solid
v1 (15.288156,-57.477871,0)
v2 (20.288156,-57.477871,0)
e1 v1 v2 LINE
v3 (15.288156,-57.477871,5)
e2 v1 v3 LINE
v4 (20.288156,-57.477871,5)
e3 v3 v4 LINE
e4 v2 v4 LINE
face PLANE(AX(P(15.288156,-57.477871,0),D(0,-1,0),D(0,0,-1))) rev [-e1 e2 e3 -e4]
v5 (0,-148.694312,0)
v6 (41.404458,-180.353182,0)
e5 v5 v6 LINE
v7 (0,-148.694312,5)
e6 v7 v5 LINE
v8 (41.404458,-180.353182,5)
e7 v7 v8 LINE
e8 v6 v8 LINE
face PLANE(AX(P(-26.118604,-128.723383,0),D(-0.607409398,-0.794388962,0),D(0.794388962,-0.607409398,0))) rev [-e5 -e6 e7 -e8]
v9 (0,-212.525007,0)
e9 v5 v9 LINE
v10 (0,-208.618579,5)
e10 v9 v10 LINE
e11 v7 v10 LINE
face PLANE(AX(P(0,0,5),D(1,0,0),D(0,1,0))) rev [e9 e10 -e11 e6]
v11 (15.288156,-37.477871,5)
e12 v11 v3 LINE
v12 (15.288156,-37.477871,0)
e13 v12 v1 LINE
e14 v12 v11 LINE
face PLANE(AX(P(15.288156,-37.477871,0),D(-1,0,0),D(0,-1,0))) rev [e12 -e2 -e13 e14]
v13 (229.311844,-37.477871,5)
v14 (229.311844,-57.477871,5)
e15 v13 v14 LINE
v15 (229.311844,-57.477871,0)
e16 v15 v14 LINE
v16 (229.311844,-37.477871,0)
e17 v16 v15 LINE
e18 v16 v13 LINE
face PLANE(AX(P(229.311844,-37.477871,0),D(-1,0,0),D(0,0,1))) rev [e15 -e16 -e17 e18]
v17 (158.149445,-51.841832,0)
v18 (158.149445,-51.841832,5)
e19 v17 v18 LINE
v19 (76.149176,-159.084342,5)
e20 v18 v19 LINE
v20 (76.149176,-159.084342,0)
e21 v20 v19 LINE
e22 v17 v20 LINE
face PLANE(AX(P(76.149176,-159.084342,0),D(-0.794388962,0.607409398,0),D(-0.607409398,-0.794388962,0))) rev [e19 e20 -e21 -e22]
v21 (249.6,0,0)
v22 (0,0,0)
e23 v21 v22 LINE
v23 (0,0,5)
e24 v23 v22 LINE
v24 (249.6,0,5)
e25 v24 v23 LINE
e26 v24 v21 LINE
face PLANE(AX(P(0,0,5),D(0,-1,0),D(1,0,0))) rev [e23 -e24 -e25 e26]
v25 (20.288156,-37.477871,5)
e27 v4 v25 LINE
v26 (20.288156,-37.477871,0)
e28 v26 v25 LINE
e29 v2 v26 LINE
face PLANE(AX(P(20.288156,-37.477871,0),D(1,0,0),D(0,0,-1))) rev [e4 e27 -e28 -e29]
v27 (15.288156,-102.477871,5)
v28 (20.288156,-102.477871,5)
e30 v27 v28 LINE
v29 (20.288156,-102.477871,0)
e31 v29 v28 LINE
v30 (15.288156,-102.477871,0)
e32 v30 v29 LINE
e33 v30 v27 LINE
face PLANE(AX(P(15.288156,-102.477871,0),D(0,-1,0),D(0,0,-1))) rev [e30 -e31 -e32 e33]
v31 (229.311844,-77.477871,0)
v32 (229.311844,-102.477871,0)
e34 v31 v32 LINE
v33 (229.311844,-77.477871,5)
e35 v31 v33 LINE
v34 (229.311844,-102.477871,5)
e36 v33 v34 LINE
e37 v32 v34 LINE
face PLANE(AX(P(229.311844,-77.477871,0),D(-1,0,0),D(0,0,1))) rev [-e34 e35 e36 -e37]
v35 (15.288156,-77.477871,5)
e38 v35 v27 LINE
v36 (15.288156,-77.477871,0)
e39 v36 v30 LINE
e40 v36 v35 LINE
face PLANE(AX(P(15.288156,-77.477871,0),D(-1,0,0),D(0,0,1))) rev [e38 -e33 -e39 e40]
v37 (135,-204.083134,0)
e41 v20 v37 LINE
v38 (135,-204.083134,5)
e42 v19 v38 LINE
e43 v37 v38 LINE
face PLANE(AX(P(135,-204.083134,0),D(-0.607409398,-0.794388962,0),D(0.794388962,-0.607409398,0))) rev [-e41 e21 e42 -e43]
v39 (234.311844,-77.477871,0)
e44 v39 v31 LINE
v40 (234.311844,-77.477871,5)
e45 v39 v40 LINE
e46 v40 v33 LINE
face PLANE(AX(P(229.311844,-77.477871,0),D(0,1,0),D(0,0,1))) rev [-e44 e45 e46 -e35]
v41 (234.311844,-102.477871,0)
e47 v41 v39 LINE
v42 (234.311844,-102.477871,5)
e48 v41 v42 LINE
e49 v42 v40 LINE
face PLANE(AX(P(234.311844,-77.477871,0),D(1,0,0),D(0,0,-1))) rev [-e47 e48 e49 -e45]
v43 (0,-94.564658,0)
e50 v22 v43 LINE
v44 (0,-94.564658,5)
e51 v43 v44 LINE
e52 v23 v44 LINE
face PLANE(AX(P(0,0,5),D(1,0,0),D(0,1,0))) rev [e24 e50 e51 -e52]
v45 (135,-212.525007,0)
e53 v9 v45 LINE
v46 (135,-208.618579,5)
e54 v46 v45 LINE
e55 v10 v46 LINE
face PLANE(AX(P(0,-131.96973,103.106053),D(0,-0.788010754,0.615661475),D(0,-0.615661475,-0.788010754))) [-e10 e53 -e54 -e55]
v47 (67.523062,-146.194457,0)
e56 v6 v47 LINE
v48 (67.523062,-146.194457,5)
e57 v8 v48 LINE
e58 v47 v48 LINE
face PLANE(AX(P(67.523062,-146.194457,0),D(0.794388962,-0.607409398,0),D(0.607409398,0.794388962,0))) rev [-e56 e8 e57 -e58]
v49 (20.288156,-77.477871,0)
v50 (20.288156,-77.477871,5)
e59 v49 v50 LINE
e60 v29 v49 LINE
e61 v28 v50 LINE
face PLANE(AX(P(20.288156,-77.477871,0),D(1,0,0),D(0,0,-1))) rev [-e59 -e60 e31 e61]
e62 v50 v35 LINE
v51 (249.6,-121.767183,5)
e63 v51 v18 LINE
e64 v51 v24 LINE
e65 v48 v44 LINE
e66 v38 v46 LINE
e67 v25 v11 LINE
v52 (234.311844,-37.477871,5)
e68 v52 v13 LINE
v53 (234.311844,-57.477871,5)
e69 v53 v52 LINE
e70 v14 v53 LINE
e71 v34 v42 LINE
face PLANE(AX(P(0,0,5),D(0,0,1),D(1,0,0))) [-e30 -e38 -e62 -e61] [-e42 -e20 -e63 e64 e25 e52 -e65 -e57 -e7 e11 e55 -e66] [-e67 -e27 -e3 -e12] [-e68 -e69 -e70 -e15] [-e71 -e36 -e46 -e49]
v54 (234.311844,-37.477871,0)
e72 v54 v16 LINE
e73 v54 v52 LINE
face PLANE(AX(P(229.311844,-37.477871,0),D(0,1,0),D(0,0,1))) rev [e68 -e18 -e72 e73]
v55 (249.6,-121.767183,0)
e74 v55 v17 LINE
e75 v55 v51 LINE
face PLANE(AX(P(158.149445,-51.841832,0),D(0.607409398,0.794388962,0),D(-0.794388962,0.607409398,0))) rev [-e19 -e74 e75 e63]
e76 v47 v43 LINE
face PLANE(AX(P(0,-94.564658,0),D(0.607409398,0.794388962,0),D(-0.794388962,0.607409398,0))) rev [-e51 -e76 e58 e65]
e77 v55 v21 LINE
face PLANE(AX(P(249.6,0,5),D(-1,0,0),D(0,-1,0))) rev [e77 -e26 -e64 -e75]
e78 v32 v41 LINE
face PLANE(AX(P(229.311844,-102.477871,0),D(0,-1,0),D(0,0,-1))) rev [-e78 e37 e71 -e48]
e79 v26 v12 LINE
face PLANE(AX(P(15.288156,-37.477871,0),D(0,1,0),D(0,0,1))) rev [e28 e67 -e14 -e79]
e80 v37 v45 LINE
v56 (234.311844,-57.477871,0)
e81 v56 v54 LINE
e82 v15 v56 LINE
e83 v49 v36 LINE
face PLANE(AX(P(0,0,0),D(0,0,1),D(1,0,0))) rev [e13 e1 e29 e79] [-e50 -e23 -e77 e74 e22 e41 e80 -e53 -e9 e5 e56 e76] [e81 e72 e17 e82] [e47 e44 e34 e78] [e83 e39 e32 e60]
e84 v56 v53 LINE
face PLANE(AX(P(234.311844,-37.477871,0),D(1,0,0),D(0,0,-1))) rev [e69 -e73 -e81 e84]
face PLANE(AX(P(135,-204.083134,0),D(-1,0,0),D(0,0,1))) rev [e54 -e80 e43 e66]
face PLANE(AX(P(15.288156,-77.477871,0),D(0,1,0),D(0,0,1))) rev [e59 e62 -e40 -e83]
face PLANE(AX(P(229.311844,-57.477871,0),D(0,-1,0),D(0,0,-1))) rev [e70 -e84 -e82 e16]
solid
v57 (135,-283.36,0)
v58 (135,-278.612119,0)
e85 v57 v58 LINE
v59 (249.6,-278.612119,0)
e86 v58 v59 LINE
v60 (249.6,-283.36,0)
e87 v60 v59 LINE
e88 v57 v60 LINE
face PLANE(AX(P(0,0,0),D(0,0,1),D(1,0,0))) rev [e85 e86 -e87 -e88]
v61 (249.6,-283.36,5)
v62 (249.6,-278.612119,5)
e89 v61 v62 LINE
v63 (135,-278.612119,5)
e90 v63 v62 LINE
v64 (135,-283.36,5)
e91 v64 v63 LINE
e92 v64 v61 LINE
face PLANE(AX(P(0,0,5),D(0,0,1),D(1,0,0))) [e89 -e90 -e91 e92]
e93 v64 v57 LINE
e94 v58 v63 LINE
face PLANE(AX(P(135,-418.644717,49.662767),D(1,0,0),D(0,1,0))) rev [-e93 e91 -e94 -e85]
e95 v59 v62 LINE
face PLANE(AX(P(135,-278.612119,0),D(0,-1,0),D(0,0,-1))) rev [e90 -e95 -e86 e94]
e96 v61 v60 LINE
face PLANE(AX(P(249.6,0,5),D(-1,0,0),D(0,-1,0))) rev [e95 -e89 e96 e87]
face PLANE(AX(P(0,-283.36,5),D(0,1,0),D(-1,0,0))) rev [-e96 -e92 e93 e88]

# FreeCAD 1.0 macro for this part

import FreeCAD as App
import Part
import Sketcher

V = App.Vector


def add_polygon(sketch, points):
    """Adds a closed chain of lines whose ends are joined by coincident constraints."""
    first, n = sketch.GeometryCount, len(points)
    for a, b in zip(points, points[1:] + points[:1]):
        sketch.addGeometry(Part.LineSegment(App.Vector(*a, 0), App.Vector(*b, 0)), False)
    for i in range(n):
        sketch.addConstraint(Sketcher.Constraint("Coincident", first + i, 2, first + (i + 1) % n, 1))

doc = App.newDocument("Part")
body = doc.addObject("PartDesign::Body", "Body")
body.AllowCompound = True

sketch1 = doc.addObject("Sketcher::SketchObject", "Sketch")
body.addObject(sketch1)
sketch1.AttachmentSupport = (doc.XY_Plane, [""])
sketch1.MapMode = "FlatFace"
add_polygon(sketch1, [(0, 0), (0, -283), (250, -283), (250, 0)])
sketch1.addConstraint(Sketcher.Constraint("Vertical", 0))
sketch1.addConstraint(Sketcher.Constraint("Horizontal", 1))
sketch1.addConstraint(Sketcher.Constraint("Vertical", 2))
sketch1.addConstraint(Sketcher.Constraint("Horizontal", 3))
sketch1.addConstraint(Sketcher.Constraint("Coincident", 3, 2, -1, 1))
sketch1.addConstraint(Sketcher.Constraint("DistanceX", 1, 1, 1, 2, 249.6))
sketch1.addConstraint(Sketcher.Constraint("DistanceY", 0, 2, 0, 1, 283.36))
pad1 = doc.addObject("PartDesign::Pad", "Pad")
body.addObject(pad1)
pad1.Profile = sketch1
pad1.Length = 5

sketch2 = doc.addObject("Sketcher::SketchObject", "Sketch001")
body.addObject(sketch2)
sketch2.Placement = App.Placement(V(0, -131.96973, 103.106053), App.Rotation(V(1, 0, 0), V(0, -0.615661475, -0.788010754), V(0, 0.788010754, -0.615661475), "ZXY"))
add_polygon(sketch2, [(0, 219), (0, -11), (135, -11), (135, 219)])
sketch2.addConstraint(Sketcher.Constraint("Vertical", 0))
sketch2.addConstraint(Sketcher.Constraint("Horizontal", 1))
sketch2.addConstraint(Sketcher.Constraint("Vertical", 2))
sketch2.addConstraint(Sketcher.Constraint("Horizontal", 3))
sketch2.addConstraint(Sketcher.Constraint("PointOnObject", 0, 2, -2))
sketch2.addConstraint(Sketcher.Constraint("DistanceX", 1, 1, 1, 2, 135.0))
sketch2.addConstraint(Sketcher.Constraint("DistanceY", 0, 2, 0, 1, 230.014345))
sketch2.addConstraint(Sketcher.Constraint("DistanceY", -1, 1, 2, 2, 218.608629))
pocket1 = doc.addObject("PartDesign::Pocket", "Pocket")
body.addObject(pocket1)
pocket1.Profile = sketch2
pocket1.Length = 193

sketch3 = doc.addObject("Sketcher::SketchObject", "Sketch002")
body.addObject(sketch3)
sketch3.AttachmentSupport = (doc.XY_Plane, [""])
sketch3.MapMode = "FlatFace"
sketch3.AttachmentOffset = App.Placement(V(0, 0, 5), App.Rotation())
add_polygon(sketch3, [(250, -122), (215, -95), (158, -52), (76, -159), (135, -204), (135, -279), (250, -279)])
sketch3.addConstraint(Sketcher.Constraint("Vertical", 4))
sketch3.addConstraint(Sketcher.Constraint("Horizontal", 5))
sketch3.addConstraint(Sketcher.Constraint("Vertical", 6))
sketch3.addConstraint(Sketcher.Constraint("Parallel", 0, 1))
sketch3.addConstraint(Sketcher.Constraint("Perpendicular", 1, 2))
sketch3.addConstraint(Sketcher.Constraint("Perpendicular", 2, 3))
sketch3.addConstraint(Sketcher.Constraint("Distance", 2, 135.0))
sketch3.addConstraint(Sketcher.Constraint("DistanceX", 5, 1, 5, 2, 114.6))
sketch3.addConstraint(Sketcher.Constraint("DistanceX", -1, 1, 3, 2, 135.0))
sketch3.addConstraint(Sketcher.Constraint("DistanceX", -1, 1, 0, 2, 214.957001))
sketch3.addConstraint(Sketcher.Constraint("DistanceY", 3, 2, 1, 2, 152.241302))
sketch3.addConstraint(Sketcher.Constraint("Distance", 1, 71.51101))
sketch3.addConstraint(Sketcher.Constraint("DistanceY", 4, 2, 4, 1, 74.528985))
sketch3.addConstraint(Sketcher.Constraint("DistanceY", 0, 2, -1, 1, 95.278292))
pocket2 = doc.addObject("PartDesign::Pocket", "Pocket001")
body.addObject(pocket2)
pocket2.Profile = sketch3
pocket2.Type = "ThroughAll"

sketch4 = doc.addObject("Sketcher::SketchObject", "Sketch003")
body.addObject(sketch4)
sketch4.AttachmentSupport = (doc.XY_Plane, [""])
sketch4.MapMode = "FlatFace"
sketch4.AttachmentOffset = App.Placement(V(0, 0, 5), App.Rotation())
add_polygon(sketch4, [(68, -146), (0, -95), (-26, -129), (41, -180)])
sketch4.addConstraint(Sketcher.Constraint("PointOnObject", 0, 2, -2))
sketch4.addConstraint(Sketcher.Constraint("Perpendicular", 0, 1))
sketch4.addConstraint(Sketcher.Constraint("Perpendicular", 1, 2))
sketch4.addConstraint(Sketcher.Constraint("Perpendicular", 2, 3))
sketch4.addConstraint(Sketcher.Constraint("Distance", 0, 85.0))
sketch4.addConstraint(Sketcher.Constraint("Distance", 1, 43.0))
sketch4.addConstraint(Sketcher.Constraint("DistanceY", 2, 2, 1, 2, 51.629799))
sketch4.addConstraint(Sketcher.Constraint("DistanceY", 0, 2, -1, 1, 94.564658))
pocket3 = doc.addObject("PartDesign::Pocket", "Pocket002")
body.addObject(pocket3)
pocket3.Profile = sketch4
pocket3.Type = "ThroughAll"

sketch5 = doc.addObject("Sketcher::SketchObject", "Sketch004")
body.addObject(sketch5)
sketch5.AttachmentSupport = (doc.XY_Plane, [""])
sketch5.MapMode = "FlatFace"
sketch5.AttachmentOffset = App.Placement(V(0, 0, 5), App.Rotation())
sketch5.addGeometry(Part.Circle(V(763.5, -447.3, 0), V(0, 0, 1), 2.1), False)
sketch5.addGeometry(Part.Circle(V(787.8, -441.5, 0), V(0, 0, 1), 2.1), False)
sketch5.addGeometry(Part.Circle(V(793.6, -465.8, 0), V(0, 0, 1), 2.1), False)
sketch5.addGeometry(Part.Circle(V(769.3, -471.6, 0), V(0, 0, 1), 2.1), False)
sketch5.addGeometry(Part.Circle(V(797.7, -482.8, 0), V(0, 0, 1), 2.1), False)
sketch5.addGeometry(Part.Circle(V(773.4, -488.7, 0), V(0, 0, 1), 2.1), False)
sketch5.addGeometry(Part.Circle(V(784.4, -480.9, 0), V(0, 0, 1), 4), False)
sketch5.addGeometry(Part.Circle(V(778.6, -456.6, 0), V(0, 0, 1), 4), False)
sketch5.addConstraint(Sketcher.Constraint("Equal", 0, 1))
sketch5.addConstraint(Sketcher.Constraint("Equal", 1, 2))
sketch5.addConstraint(Sketcher.Constraint("Equal", 2, 3))
sketch5.addConstraint(Sketcher.Constraint("Equal", 3, 4))
sketch5.addConstraint(Sketcher.Constraint("Equal", 4, 5))
sketch5.addConstraint(Sketcher.Constraint("Equal", 6, 7))
sketch5.addConstraint(Sketcher.Constraint("Diameter", 6, 8.0))
sketch5.addConstraint(Sketcher.Constraint("Diameter", 0, 4.2))
sketch5.addConstraint(Sketcher.Constraint("DistanceY", 6, 3, -1, 1, 480.8762))
sketch5.addConstraint(Sketcher.Constraint("DistanceY", 5, 3, 2, 3, 22.845199))
sketch5.addConstraint(Sketcher.Constraint("DistanceX", -1, 1, 0, 3, 763.495728))
sketch5.addConstraint(Sketcher.Constraint("DistanceY", 0, 3, -1, 1, 447.322739))
sketch5.addConstraint(Sketcher.Constraint("DistanceY", 1, 3, -1, 1, 441.495509))
sketch5.addConstraint(Sketcher.Constraint("DistanceX", -1, 1, 2, 3, 793.634342))
sketch5.addConstraint(Sketcher.Constraint("DistanceY", 4, 3, -1, 1, 482.824862))
sketch5.addConstraint(Sketcher.Constraint("DistanceX", -1, 1, 5, 3, 773.402019))
sketch5.addConstraint(Sketcher.Constraint("DistanceY", 5, 3, -1, 1, 488.652092))
sketch5.addConstraint(Sketcher.Constraint("DistanceX", 1, 3, 2, 3, 5.82723))
sketch5.addConstraint(Sketcher.Constraint("DistanceX", 0, 3, 3, 3, 5.82723))
sketch5.addConstraint(Sketcher.Constraint("DistanceY", 3, 3, 2, 3, 5.82723))
sketch5.addConstraint(Sketcher.Constraint("DistanceX", 2, 3, 4, 3, 4.079061))
sketch5.addConstraint(Sketcher.Constraint("DistanceX", 7, 3, 6, 3, 5.82723))
sketch5.addConstraint(Sketcher.Constraint("DistanceX", -1, 1, 6, 3, 784.392265))
sketch5.addConstraint(Sketcher.Constraint("DistanceY", 7, 3, -1, 1, 456.564816))
pocket4 = doc.addObject("PartDesign::Pocket", "Pocket003")
body.addObject(pocket4)
pocket4.Profile = sketch5
pocket4.Type = "ThroughAll"

sketch6 = doc.addObject("Sketcher::SketchObject", "Sketch005")
body.addObject(sketch6)
sketch6.AttachmentSupport = (doc.XY_Plane, [""])
sketch6.MapMode = "FlatFace"
sketch6.AttachmentOffset = App.Placement(V(0, 0, 5), App.Rotation())
add_polygon(sketch6, [(15, -37), (15, -57), (20, -57), (20, -37)])
add_polygon(sketch6, [(229, -37), (229, -57), (234, -57), (234, -37)])
add_polygon(sketch6, [(15, -77), (15, -102), (20, -102), (20, -77)])
add_polygon(sketch6, [(229, -77), (229, -102), (234, -102), (234, -77)])
sketch6.addConstraint(Sketcher.Constraint("Vertical", 0))
sketch6.addConstraint(Sketcher.Constraint("Horizontal", 1))
sketch6.addConstraint(Sketcher.Constraint("Vertical", 2))
sketch6.addConstraint(Sketcher.Constraint("Horizontal", 3))
sketch6.addConstraint(Sketcher.Constraint("Vertical", 4))
sketch6.addConstraint(Sketcher.Constraint("Horizontal", 5))
sketch6.addConstraint(Sketcher.Constraint("Vertical", 6))
sketch6.addConstraint(Sketcher.Constraint("Horizontal", 7))
sketch6.addConstraint(Sketcher.Constraint("Vertical", 8))
sketch6.addConstraint(Sketcher.Constraint("Horizontal", 9))
sketch6.addConstraint(Sketcher.Constraint("Vertical", 10))
sketch6.addConstraint(Sketcher.Constraint("Horizontal", 11))
sketch6.addConstraint(Sketcher.Constraint("Vertical", 12))
sketch6.addConstraint(Sketcher.Constraint("Horizontal", 13))
sketch6.addConstraint(Sketcher.Constraint("Vertical", 14))
sketch6.addConstraint(Sketcher.Constraint("Horizontal", 15))
sketch6.addConstraint(Sketcher.Constraint("Horizontal", 1, 2, 4, 2))
sketch6.addConstraint(Sketcher.Constraint("Horizontal", 3, 2, 6, 2))
sketch6.addConstraint(Sketcher.Constraint("Horizontal", 9, 2, 12, 2))
sketch6.addConstraint(Sketcher.Constraint("Horizontal", 11, 2, 14, 2))
sketch6.addConstraint(Sketcher.Constraint("Vertical", 3, 2, 8, 2))
sketch6.addConstraint(Sketcher.Constraint("Vertical", 2, 2, 9, 2))
sketch6.addConstraint(Sketcher.Constraint("Vertical", 7, 2, 12, 2))
sketch6.addConstraint(Sketcher.Constraint("Vertical", 6, 2, 13, 2))
sketch6.addConstraint(Sketcher.Constraint("Equal", 3, 5))
sketch6.addConstraint(Sketcher.Constraint("DistanceX", 1, 1, 1, 2, 5.0))
sketch6.addConstraint(Sketcher.Constraint("DistanceY", 0, 2, 0, 1, 20.0))
sketch6.addConstraint(Sketcher.Constraint("DistanceY", 8, 2, 8, 1, 25.0))
sketch6.addConstraint(Sketcher.Constraint("DistanceY", 8, 2, 0, 2, 45.0))
sketch6.addConstraint(Sketcher.Constraint("DistanceY", 0, 2, -1, 1, 57.477871))
sketch6.addConstraint(Sketcher.Constraint("DistanceX", 1, 2, 4, 2, 209.023689))
sketch6.addConstraint(Sketcher.Constraint("DistanceX", -1, 1, 0, 2, 15.288156))
pocket5 = doc.addObject("PartDesign::Pocket", "Pocket004")
body.addObject(pocket5)
pocket5.Profile = sketch6
pocket5.Type = "ThroughAll"

doc.recompute()
